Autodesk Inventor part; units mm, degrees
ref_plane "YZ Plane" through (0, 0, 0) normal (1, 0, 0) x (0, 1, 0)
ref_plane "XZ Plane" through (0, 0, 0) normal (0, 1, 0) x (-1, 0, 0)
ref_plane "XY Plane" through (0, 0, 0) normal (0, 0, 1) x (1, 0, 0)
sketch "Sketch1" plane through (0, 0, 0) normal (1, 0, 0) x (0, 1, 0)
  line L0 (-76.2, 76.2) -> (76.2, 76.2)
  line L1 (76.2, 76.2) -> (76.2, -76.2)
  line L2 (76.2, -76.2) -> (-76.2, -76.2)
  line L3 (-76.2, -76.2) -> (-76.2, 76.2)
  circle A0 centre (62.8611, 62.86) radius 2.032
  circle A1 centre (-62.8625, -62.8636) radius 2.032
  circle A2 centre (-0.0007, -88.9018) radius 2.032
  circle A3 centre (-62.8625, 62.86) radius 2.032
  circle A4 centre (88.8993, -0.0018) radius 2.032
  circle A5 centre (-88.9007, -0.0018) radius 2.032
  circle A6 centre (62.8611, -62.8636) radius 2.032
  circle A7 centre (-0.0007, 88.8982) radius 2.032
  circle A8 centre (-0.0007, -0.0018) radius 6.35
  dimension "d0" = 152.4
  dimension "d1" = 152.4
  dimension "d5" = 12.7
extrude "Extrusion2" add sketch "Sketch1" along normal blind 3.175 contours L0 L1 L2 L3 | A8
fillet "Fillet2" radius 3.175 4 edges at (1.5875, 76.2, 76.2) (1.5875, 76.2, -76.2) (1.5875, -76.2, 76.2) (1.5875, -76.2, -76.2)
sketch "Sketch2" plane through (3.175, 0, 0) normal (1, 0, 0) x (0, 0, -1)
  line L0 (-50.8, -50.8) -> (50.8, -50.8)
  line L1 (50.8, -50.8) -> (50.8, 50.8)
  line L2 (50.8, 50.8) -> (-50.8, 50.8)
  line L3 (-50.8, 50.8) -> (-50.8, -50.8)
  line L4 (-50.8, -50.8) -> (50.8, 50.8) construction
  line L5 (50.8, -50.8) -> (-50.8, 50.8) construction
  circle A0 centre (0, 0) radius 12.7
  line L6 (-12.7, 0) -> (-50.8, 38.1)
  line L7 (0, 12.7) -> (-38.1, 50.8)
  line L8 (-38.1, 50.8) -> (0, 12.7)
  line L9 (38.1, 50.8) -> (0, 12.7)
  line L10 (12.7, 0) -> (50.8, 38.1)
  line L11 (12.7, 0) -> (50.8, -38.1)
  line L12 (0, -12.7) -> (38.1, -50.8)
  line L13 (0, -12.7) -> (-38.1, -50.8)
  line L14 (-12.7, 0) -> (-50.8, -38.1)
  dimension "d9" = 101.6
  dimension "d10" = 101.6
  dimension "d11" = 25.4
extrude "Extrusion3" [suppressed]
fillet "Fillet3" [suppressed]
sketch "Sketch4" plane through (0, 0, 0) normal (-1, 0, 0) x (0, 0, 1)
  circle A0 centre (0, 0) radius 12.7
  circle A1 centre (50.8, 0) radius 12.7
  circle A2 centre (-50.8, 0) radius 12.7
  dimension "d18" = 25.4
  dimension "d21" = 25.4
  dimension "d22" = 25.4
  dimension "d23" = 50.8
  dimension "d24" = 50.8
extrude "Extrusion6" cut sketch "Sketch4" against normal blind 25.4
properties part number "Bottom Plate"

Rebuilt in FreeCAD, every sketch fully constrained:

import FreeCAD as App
import Part
import Sketcher
Q = App.Units.Quantity


def edges_at(feature, points):
    """Names of the edges that pass closest to the given points."""
    edges = feature.Shape.Edges
    near = lambda p: min(range(len(edges)), key=lambda i: edges[i].distToShape(Part.Vertex(*p))[0])
    return sorted({f"Edge{near(p) + 1}" for p in points})

doc = App.newDocument("Part")
body = doc.addObject("PartDesign::Body", "Body")

# Sketch on YZ plane
sketch1 = doc.addObject("Sketcher::SketchObject", "Sketch")
body.addObject(sketch1)
sketch1.AttachmentSupport = (doc.YZ_Plane, [""])
sketch1.MapMode = "FlatFace"
sketch1.addGeometry(Part.LineSegment(App.Vector(76.2, 76.2, 0), App.Vector(-76.2, 76.2, 0)), False)
sketch1.addGeometry(Part.LineSegment(App.Vector(-76.2, 76.2, 0), App.Vector(-76.2, -76.2, 0)), False)
sketch1.addGeometry(Part.LineSegment(App.Vector(-76.2, -76.2, 0), App.Vector(76.2, -76.2, 0)), False)
sketch1.addGeometry(Part.LineSegment(App.Vector(76.2, -76.2, 0), App.Vector(76.2, 76.2, 0)), False)
sketch1.addGeometry(Part.Circle(App.Vector(-62.8625, -62.8636, 0), App.Vector(0, 0, 1), 2.032), False)
sketch1.addGeometry(Part.Circle(App.Vector(62.8611, -62.8636, 0), App.Vector(0, 0, 1), 2.032), False)
sketch1.addGeometry(Part.Circle(App.Vector(-62.8625, 62.86, 0), App.Vector(0, 0, 1), 2.032), False)
sketch1.addGeometry(Part.Circle(App.Vector(62.8611, 62.86, 0), App.Vector(0, 0, 1), 2.032), False)
sketch1.addConstraint(Sketcher.Constraint("Coincident", 0, 2, 1, 1))
sketch1.addConstraint(Sketcher.Constraint("Coincident", 1, 2, 2, 1))
sketch1.addConstraint(Sketcher.Constraint("Coincident", 2, 2, 3, 1))
sketch1.addConstraint(Sketcher.Constraint("Coincident", 3, 2, 0, 1))
sketch1.addConstraint(Sketcher.Constraint("Horizontal", 0))
sketch1.addConstraint(Sketcher.Constraint("Vertical", 1))
sketch1.addConstraint(Sketcher.Constraint("Horizontal", 2))
sketch1.addConstraint(Sketcher.Constraint("Vertical", 3))
sketch1.addConstraint(Sketcher.Constraint("Equal", 4, 5))
sketch1.addConstraint(Sketcher.Constraint("Equal", 5, 6))
sketch1.addConstraint(Sketcher.Constraint("Equal", 6, 7))
sketch1.addConstraint(Sketcher.Constraint("Symmetric", 0, 2, 2, 2, -1, 1))
sketch1.addConstraint(Sketcher.Constraint("Horizontal", 4, 3, 5, 3))
sketch1.addConstraint(Sketcher.Constraint("Horizontal", 6, 3, 7, 3))
sketch1.addConstraint(Sketcher.Constraint("Vertical", 4, 3, 6, 3))
sketch1.addConstraint(Sketcher.Constraint("Vertical", 5, 3, 7, 3))
sketch1.addConstraint(Sketcher.Constraint("Equal", 2, 1))
sketch1.addConstraint(Sketcher.Constraint("DistanceX", 0, 2, 0, 1, Q("6 in")))
sketch1.addConstraint(Sketcher.Constraint("Diameter", 4, Q("0.16 in")))
sketch1.addConstraint(Sketcher.Constraint("DistanceX", 4, 3, -1, 1, Q("2.4749 in")))
sketch1.addConstraint(Sketcher.Constraint("DistanceY", -1, 1, 6, 3, Q("2.4748 in")))
sketch1.addConstraint(Sketcher.Constraint("DistanceY", 4, 3, -1, 1, Q("62.8636 mm")))
sketch1.addConstraint(Sketcher.Constraint("DistanceX", -1, 1, 5, 3, Q("62.861 mm")))
pad1 = doc.addObject("PartDesign::Pad", "Pad")
body.addObject(pad1)
pad1.Profile = sketch1
pad1.Length = Q("0.125 in")
doc.recompute()

fillet = doc.addObject("PartDesign::Fillet", "Fillet")
body.addObject(fillet)
fillet.Base = (pad1, edges_at(pad1, [
    (1.587, 76.2, 76.2),
    (1.587, 76.2, -76.2),
    (1.587, -76.2, 76.2),
    (1.587, -76.2, -76.2),
]))
fillet.Radius = Q("0.125 in")

# Sketch on YZ plane
sketch2 = doc.addObject("Sketcher::SketchObject", "Sketch001")
body.addObject(sketch2)
sketch2.AttachmentSupport = (doc.YZ_Plane, [""])
sketch2.MapMode = "FlatFace"
sketch2.addGeometry(Part.Circle(App.Vector(0, 0, 0), App.Vector(0, 0, 1), 12.7), False)
sketch2.addGeometry(Part.Circle(App.Vector(0, 50.8, 0), App.Vector(0, 0, 1), 12.7), False)
sketch2.addGeometry(Part.Circle(App.Vector(0, -50.8, 0), App.Vector(0, 0, 1), 12.7), False)
sketch2.addConstraint(Sketcher.Constraint("Coincident", 0, 3, -1, 1))
sketch2.addConstraint(Sketcher.Constraint("Equal", 0, 1))
sketch2.addConstraint(Sketcher.Constraint("Equal", 1, 2))
sketch2.addConstraint(Sketcher.Constraint("Symmetric", 1, 3, 2, 3, -1, 1))
sketch2.addConstraint(Sketcher.Constraint("PointOnObject", 1, 3, -2))
sketch2.addConstraint(Sketcher.Constraint("Diameter", 0, Q("1 in")))
sketch2.addConstraint(Sketcher.Constraint("DistanceY", -1, 1, 1, 3, Q("2 in")))
pocket1 = doc.addObject("PartDesign::Pocket", "Pocket")
body.addObject(pocket1)
pocket1.Profile = sketch2
pocket1.Length = Q("1 in")
pocket1.Reversed = True

doc.recompute()
